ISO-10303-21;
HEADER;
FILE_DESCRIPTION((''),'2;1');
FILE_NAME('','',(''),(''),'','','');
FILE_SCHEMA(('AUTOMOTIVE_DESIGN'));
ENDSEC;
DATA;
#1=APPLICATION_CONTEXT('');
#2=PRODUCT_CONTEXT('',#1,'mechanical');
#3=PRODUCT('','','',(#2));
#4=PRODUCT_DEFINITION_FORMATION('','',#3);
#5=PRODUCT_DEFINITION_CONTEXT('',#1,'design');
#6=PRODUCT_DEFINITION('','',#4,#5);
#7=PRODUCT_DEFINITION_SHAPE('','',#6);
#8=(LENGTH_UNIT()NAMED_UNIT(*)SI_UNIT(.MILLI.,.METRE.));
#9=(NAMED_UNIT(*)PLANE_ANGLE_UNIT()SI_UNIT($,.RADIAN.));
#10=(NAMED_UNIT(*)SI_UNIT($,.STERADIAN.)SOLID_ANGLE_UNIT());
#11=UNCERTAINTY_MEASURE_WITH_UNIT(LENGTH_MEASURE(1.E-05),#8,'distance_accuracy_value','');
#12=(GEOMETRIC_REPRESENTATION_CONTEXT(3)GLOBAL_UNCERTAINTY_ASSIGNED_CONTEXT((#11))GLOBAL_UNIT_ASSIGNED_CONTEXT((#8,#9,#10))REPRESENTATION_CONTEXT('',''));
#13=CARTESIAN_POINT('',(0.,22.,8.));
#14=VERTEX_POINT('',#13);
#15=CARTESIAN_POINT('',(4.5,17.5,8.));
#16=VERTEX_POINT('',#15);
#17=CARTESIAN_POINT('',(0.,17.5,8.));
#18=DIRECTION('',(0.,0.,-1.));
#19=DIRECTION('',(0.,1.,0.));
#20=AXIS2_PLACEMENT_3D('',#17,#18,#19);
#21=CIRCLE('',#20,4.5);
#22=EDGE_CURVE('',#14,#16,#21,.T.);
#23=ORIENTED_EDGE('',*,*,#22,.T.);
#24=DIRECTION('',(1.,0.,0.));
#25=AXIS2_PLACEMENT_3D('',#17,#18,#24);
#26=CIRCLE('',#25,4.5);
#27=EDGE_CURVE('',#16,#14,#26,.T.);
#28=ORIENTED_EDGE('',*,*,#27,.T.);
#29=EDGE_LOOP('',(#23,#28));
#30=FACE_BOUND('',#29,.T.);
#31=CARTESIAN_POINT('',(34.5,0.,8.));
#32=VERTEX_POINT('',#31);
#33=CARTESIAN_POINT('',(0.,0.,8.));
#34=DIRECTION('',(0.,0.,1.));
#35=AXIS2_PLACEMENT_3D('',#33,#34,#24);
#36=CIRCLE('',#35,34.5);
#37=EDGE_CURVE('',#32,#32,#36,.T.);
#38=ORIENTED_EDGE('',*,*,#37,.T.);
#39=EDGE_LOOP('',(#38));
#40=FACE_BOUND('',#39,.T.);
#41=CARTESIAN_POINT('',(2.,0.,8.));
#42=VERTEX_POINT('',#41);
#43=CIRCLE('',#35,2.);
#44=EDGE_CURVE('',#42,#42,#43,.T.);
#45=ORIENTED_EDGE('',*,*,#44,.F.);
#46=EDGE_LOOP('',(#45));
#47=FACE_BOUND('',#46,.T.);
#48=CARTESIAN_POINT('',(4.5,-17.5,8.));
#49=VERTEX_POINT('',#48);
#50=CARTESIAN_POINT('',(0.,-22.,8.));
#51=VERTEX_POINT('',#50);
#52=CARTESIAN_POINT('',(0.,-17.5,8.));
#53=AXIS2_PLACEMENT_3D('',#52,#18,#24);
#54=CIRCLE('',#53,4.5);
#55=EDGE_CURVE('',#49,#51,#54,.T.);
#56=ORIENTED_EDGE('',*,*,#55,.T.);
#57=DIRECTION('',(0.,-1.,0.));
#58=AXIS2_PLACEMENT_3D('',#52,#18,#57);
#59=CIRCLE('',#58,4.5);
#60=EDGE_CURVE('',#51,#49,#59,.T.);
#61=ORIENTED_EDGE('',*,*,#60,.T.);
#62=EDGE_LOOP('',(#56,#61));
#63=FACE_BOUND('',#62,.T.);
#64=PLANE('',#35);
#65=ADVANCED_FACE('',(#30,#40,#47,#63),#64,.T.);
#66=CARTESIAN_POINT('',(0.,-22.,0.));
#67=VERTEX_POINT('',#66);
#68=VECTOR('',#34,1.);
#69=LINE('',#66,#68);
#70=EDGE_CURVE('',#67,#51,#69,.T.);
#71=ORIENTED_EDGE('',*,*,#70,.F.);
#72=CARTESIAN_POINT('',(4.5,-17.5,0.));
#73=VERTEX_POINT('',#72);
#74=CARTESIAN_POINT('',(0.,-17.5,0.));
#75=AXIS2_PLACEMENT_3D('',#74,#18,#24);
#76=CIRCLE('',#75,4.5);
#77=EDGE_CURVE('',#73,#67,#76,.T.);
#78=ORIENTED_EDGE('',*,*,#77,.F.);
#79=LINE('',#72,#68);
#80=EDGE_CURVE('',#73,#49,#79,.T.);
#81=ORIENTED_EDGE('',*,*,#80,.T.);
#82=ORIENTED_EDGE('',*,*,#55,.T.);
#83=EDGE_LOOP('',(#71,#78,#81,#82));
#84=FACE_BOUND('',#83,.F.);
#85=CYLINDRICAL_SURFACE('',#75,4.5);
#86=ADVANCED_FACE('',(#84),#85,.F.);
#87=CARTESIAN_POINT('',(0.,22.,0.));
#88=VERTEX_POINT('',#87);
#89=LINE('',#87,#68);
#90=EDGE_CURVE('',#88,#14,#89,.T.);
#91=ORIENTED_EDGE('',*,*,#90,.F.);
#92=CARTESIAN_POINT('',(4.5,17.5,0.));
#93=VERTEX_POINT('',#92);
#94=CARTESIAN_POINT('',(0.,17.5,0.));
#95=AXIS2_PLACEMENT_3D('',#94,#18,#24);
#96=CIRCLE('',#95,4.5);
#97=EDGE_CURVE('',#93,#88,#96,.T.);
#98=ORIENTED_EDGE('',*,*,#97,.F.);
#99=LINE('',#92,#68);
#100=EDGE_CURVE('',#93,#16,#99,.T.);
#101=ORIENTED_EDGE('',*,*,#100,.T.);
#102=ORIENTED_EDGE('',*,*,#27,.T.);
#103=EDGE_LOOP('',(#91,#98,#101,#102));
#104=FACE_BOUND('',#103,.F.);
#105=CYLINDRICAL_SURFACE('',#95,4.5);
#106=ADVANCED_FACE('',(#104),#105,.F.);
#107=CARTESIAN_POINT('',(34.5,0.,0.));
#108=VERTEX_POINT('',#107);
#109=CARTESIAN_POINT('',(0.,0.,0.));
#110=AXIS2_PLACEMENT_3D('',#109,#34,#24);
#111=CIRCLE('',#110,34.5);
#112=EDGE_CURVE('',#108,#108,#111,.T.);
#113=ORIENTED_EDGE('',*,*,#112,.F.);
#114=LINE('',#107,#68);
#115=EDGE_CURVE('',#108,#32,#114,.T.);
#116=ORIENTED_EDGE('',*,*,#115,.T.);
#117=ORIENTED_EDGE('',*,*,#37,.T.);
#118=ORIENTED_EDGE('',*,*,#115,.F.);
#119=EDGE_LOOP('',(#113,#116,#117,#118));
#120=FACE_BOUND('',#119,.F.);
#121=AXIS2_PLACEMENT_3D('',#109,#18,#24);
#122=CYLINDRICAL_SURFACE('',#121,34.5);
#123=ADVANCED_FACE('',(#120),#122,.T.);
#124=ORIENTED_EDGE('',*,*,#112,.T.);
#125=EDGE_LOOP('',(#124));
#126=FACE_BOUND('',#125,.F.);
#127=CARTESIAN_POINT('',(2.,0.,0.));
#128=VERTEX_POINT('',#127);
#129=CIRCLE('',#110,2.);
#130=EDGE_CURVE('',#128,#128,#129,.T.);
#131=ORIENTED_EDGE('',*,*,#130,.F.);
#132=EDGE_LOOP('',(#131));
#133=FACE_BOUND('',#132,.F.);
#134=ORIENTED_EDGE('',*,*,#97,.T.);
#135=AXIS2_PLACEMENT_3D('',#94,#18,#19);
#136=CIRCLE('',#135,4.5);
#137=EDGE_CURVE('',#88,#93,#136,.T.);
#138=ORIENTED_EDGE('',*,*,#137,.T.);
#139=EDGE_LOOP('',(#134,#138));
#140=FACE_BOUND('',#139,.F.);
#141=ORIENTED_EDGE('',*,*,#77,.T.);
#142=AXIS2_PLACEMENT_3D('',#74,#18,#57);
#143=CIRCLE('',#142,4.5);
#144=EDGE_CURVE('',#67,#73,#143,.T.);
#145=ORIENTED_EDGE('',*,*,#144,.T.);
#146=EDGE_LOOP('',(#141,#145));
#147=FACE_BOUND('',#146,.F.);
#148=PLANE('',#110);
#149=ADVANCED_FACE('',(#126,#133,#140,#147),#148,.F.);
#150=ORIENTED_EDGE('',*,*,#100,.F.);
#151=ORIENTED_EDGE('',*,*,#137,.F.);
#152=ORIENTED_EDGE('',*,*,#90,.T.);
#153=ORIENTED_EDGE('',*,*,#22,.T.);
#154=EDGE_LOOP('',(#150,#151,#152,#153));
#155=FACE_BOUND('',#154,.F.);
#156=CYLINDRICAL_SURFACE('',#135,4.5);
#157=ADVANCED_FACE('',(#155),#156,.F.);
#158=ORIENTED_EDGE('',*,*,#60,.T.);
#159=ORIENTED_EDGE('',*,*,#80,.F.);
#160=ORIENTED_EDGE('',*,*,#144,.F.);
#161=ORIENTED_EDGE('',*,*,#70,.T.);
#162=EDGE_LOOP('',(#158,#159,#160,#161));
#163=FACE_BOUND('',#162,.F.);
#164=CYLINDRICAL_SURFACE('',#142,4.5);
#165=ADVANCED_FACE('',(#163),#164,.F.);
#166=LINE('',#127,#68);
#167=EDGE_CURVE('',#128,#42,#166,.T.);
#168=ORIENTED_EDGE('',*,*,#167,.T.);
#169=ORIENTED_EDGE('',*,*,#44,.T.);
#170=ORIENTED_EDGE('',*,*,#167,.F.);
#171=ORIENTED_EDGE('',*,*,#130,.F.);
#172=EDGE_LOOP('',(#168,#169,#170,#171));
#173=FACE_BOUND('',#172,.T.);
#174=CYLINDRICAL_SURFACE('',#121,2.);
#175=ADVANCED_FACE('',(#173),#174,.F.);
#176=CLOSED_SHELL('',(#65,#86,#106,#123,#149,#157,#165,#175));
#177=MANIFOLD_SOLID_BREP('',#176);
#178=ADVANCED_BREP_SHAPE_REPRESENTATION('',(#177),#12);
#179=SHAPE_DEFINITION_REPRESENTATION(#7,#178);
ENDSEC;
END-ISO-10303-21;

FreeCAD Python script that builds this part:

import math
import FreeCAD as App
import Part
import Sketcher

V = App.Vector
Q = App.Units.Quantity

doc = App.newDocument("Part")
params = doc.addObject("Spreadsheet::Sheet", "Params")
for row, (alias, value) in enumerate([
    ("sketch1_diameter", "69 mm"),
    ("sketch1_diameter2", "4 mm"),
    ("sketch1_radius", "4.5 mm"),
    ("pad1_length", "8 mm"),
], start=1):
    params.set(f"A{row}", alias)
    params.set(f"B{row}", "=" + value)
    params.setAlias(f"B{row}", alias)

body = doc.addObject("PartDesign::Body", "Body")

sketch1 = body.newObject("Sketcher::SketchObject", "Sketch")
sketch1.AttachmentSupport = (doc.getObject("XY_Plane"), [""])
sketch1.MapMode = "FlatFace"
sketch1.addGeometry(Part.Circle(V(0, 0, 0), V(0, 0, 1), 34.5), False)
sketch1.addGeometry(Part.ArcOfCircle(Part.Circle(V(0, -17.5, 0), V(0, 0, 1), 4.5), math.radians(0), math.radians(270)), False)
sketch1.addGeometry(Part.ArcOfCircle(Part.Circle(V(0, -17.5, 0), V(0, 0, 1), 4.5), math.radians(-90), math.radians(0)), False)
sketch1.addGeometry(Part.Circle(V(0, 0, 0), V(0, 0, 1), 2), False)
sketch1.addGeometry(Part.ArcOfCircle(Part.Circle(V(0, 17.5, 0), V(0, 0, 1), 4.5), math.radians(0), math.radians(90)), False)
sketch1.addGeometry(Part.ArcOfCircle(Part.Circle(V(0, 17.5, 0), V(0, 0, 1), 4.5), math.radians(90), math.radians(360)), False)
sketch1.addConstraint(Sketcher.Constraint("Tangent", 1, 1, 2, 2))
sketch1.addConstraint(Sketcher.Constraint("Coincident", 2, 1, 1, 2))
sketch1.addConstraint(Sketcher.Constraint("Tangent", 4, 1, 5, 2))
sketch1.addConstraint(Sketcher.Constraint("Coincident", 5, 1, 4, 2))
sketch1.addConstraint(Sketcher.Constraint("Coincident", 0, 3, -1, 1))
sketch1.addConstraint(Sketcher.Constraint("Coincident", 3, 3, -1, 1))
sketch1.addConstraint(Sketcher.Constraint("Equal", 2, 4))
sketch1.addConstraint(Sketcher.Constraint("Symmetric", 1, 3, 4, 3, -1, 1))
sketch1.addConstraint(Sketcher.Constraint("Symmetric", 1, 1, 4, 1, -1))
sketch1.addConstraint(Sketcher.Constraint("PointOnObject", 2, 1, -2))
sketch1.addConstraint(Sketcher.Constraint("PointOnObject", 5, 1, -2))
sketch1.addConstraint(Sketcher.Constraint("Horizontal", 2, 3, 1, 1))
sketch1.addConstraint(Sketcher.Constraint("Diameter", 0, Q("69 mm")))
sketch1.addConstraint(Sketcher.Constraint("Diameter", 3, Q("4 mm")))
sketch1.addConstraint(Sketcher.Constraint("Radius", 1, Q("4.5 mm")))
sketch1.addConstraint(Sketcher.Constraint("DistanceY", 2, 1, -1, 1, Q("22 mm")))
sketch1.setExpression("Constraints[12]", "Params.sketch1_diameter")
sketch1.setExpression("Constraints[13]", "Params.sketch1_diameter2")
sketch1.setExpression("Constraints[14]", "Params.sketch1_radius")
pad1 = body.newObject("PartDesign::Pad", "Pad")
pad1.Profile = sketch1
pad1.setExpression("Length", "Params.pad1_length")

doc.recompute()
